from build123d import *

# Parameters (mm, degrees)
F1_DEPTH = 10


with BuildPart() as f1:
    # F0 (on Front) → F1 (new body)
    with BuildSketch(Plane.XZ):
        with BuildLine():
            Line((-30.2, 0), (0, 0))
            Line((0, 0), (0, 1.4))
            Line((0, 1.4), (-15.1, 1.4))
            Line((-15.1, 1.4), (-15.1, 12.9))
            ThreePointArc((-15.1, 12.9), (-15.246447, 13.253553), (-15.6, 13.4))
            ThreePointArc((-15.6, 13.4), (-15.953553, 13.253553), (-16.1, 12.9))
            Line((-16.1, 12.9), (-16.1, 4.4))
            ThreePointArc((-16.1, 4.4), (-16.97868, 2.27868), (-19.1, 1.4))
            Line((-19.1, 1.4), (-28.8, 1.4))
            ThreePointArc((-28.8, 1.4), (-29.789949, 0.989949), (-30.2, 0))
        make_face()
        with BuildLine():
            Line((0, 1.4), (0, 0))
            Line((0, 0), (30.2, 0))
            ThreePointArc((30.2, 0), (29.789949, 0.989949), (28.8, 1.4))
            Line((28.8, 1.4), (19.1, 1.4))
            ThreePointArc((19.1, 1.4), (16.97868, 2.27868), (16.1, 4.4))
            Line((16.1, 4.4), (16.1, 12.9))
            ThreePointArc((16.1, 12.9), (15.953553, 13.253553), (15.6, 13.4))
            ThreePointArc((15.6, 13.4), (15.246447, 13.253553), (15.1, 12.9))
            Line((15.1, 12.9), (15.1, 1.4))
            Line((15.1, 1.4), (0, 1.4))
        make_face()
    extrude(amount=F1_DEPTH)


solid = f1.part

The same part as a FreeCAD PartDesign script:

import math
import FreeCAD as App
import Part
import Sketcher
from FreeCAD import Vector

doc = App.newDocument("Part")
params = doc.addObject("Spreadsheet::Sheet", "Params")
for row, (alias, value) in enumerate([
    ("sketch1_radius", "3.000001 mm"),
    ("sketch1_radius2", "1.400002 mm"),
    ("sketch1_radius3", "0.500001 mm"),
    ("sketch1_width", "60.4 mm"),
    ("sketch1_width2", "9.7 mm"),
    ("pad1_length", "10 mm"),
], start=1):
    params.set(f"A{row}", alias)
    params.set(f"B{row}", "=" + value)
    params.setAlias(f"B{row}", alias)

body = doc.addObject("PartDesign::Body", "Body")

sketch1 = doc.addObject("Sketcher::SketchObject", "Sketch")
body.addObject(sketch1)
sketch1.AttachmentSupport = (doc.XZ_Plane, [""])
sketch1.MapMode = "FlatFace"
sketch1.addGeometry(Part.LineSegment(Vector(-30.2, 0, 0), Vector(30.2, 0, 0)), False)
sketch1.addGeometry(Part.ArcOfCircle(Part.Circle(Vector(28.799998, -0.000002, 0), Vector(0, 0, 1), 1.400002), math.radians(0.000069), math.radians(89.999931)), False)
sketch1.addGeometry(Part.LineSegment(Vector(28.8, 1.4, 0), Vector(19.1, 1.4, 0)), False)
sketch1.addGeometry(Part.ArcOfCircle(Part.Circle(Vector(19.100001, 4.400001, 0), Vector(0, 0, 1), 3.000001), math.radians(-179.999978), math.radians(-90.000022)), False)
sketch1.addGeometry(Part.LineSegment(Vector(16.1, 4.4, 0), Vector(16.1, 12.9, 0)), False)
sketch1.addGeometry(Part.ArcOfCircle(Part.Circle(Vector(15.599999, 12.899999, 0), Vector(0, 0, 1), 0.500001), math.radians(0.000153), math.radians(89.999847)), False)
sketch1.addGeometry(Part.ArcOfCircle(Part.Circle(Vector(15.600001, 12.899999, 0), Vector(0, 0, 1), 0.500001), math.radians(90.000153), math.radians(179.999847)), False)
sketch1.addGeometry(Part.LineSegment(Vector(15.1, 12.9, 0), Vector(15.1, 1.4, 0)), False)
sketch1.addGeometry(Part.LineSegment(Vector(15.1, 1.4, 0), Vector(-15.1, 1.4, 0)), False)
sketch1.addGeometry(Part.LineSegment(Vector(-15.1, 1.4, 0), Vector(-15.1, 12.9, 0)), False)
sketch1.addGeometry(Part.ArcOfCircle(Part.Circle(Vector(-15.600001, 12.899999, 0), Vector(0, 0, 1), 0.500001), math.radians(0.000153), math.radians(89.999847)), False)
sketch1.addGeometry(Part.ArcOfCircle(Part.Circle(Vector(-15.599999, 12.899999, 0), Vector(0, 0, 1), 0.500001), math.radians(90.000153), math.radians(179.999847)), False)
sketch1.addGeometry(Part.LineSegment(Vector(-16.1, 12.9, 0), Vector(-16.1, 4.4, 0)), False)
sketch1.addGeometry(Part.ArcOfCircle(Part.Circle(Vector(-19.100001, 4.400001, 0), Vector(0, 0, 1), 3.000001), math.radians(-89.999978), math.radians(-0.000022)), False)
sketch1.addGeometry(Part.LineSegment(Vector(-19.1, 1.4, 0), Vector(-28.8, 1.4, 0)), False)
sketch1.addGeometry(Part.ArcOfCircle(Part.Circle(Vector(-28.799998, -0.000002, 0), Vector(0, 0, 1), 1.400002), math.radians(90.000069), math.radians(179.999931)), False)
sketch1.addConstraint(Sketcher.Constraint("Coincident", 0, 2, 1, 1))
sketch1.addConstraint(Sketcher.Constraint("Tangent", 1, 2, 2, 1))
sketch1.addConstraint(Sketcher.Constraint("Tangent", 2, 2, 3, 2))
sketch1.addConstraint(Sketcher.Constraint("Tangent", 3, 1, 4, 1))
sketch1.addConstraint(Sketcher.Constraint("Coincident", 4, 2, 5, 1))
sketch1.addConstraint(Sketcher.Constraint("Coincident", 5, 2, 6, 1))
sketch1.addConstraint(Sketcher.Constraint("Coincident", 6, 2, 7, 1))
sketch1.addConstraint(Sketcher.Constraint("Coincident", 7, 2, 8, 1))
sketch1.addConstraint(Sketcher.Constraint("Coincident", 8, 2, 9, 1))
sketch1.addConstraint(Sketcher.Constraint("Coincident", 9, 2, 10, 1))
sketch1.addConstraint(Sketcher.Constraint("Coincident", 10, 2, 11, 1))
sketch1.addConstraint(Sketcher.Constraint("Coincident", 11, 2, 12, 1))
sketch1.addConstraint(Sketcher.Constraint("Tangent", 12, 2, 13, 2))
sketch1.addConstraint(Sketcher.Constraint("Tangent", 13, 1, 14, 1))
sketch1.addConstraint(Sketcher.Constraint("Tangent", 14, 2, 15, 1))
sketch1.addConstraint(Sketcher.Constraint("Coincident", 15, 2, 0, 1))
sketch1.addConstraint(Sketcher.Constraint("Horizontal", 0))
sketch1.addConstraint(Sketcher.Constraint("Horizontal", 2))
sketch1.addConstraint(Sketcher.Constraint("Vertical", 4))
sketch1.addConstraint(Sketcher.Constraint("Vertical", 7))
sketch1.addConstraint(Sketcher.Constraint("Horizontal", 8))
sketch1.addConstraint(Sketcher.Constraint("Vertical", 9))
sketch1.addConstraint(Sketcher.Constraint("Vertical", 12))
sketch1.addConstraint(Sketcher.Constraint("Horizontal", 14))
sketch1.addConstraint(Sketcher.Constraint("Coincident", 6, 3, 5, 3))
sketch1.addConstraint(Sketcher.Constraint("Coincident", 11, 3, 10, 3))
sketch1.addConstraint(Sketcher.Constraint("Equal", 6, 10))
sketch1.addConstraint(Sketcher.Constraint("Equal", 3, 13))
sketch1.addConstraint(Sketcher.Constraint("Equal", 1, 15))
sketch1.addConstraint(Sketcher.Constraint("Symmetric", 1, 3, 15, 3, -1, 1))
sketch1.addConstraint(Sketcher.Constraint("Symmetric", 5, 3, 10, 3, -2))
sketch1.addConstraint(Sketcher.Constraint("PointOnObject", 1, 3, -1))
sketch1.addConstraint(Sketcher.Constraint("PointOnObject", 0, 2, -1))
sketch1.addConstraint(Sketcher.Constraint("Horizontal", 11, 3, 4, 2))
sketch1.addConstraint(Sketcher.Constraint("Horizontal", 4, 2, 6, 2))
sketch1.addConstraint(Sketcher.Constraint("Horizontal", 2, 2, 7, 2))
sketch1.addConstraint(Sketcher.Constraint("Horizontal", 6, 2, 9, 2))
sketch1.addConstraint(Sketcher.Constraint("Horizontal", 9, 2, 11, 2))
sketch1.addConstraint(Sketcher.Constraint("Vertical", 6, 3, 5, 2))
sketch1.addConstraint(Sketcher.Constraint("Vertical", 11, 3, 10, 2))
sketch1.addConstraint(Sketcher.Constraint("Radius", 3, 3.000001))
sketch1.addConstraint(Sketcher.Constraint("Radius", 1, 1.400002))
sketch1.addConstraint(Sketcher.Constraint("Radius", 5, 0.500001))
sketch1.addConstraint(Sketcher.Constraint("DistanceX", 0, 1, 0, 2, 60.4))
sketch1.addConstraint(Sketcher.Constraint("DistanceX", 2, 2, 2, 1, 9.7))
sketch1.addConstraint(Sketcher.Constraint("DistanceY", 4, 1, 4, 2, 8.5))
sketch1.setExpression("Constraints[40]", "Params.sketch1_radius")
sketch1.setExpression("Constraints[41]", "Params.sketch1_radius2")
sketch1.setExpression("Constraints[42]", "Params.sketch1_radius3")
sketch1.setExpression("Constraints[43]", "Params.sketch1_width")
sketch1.setExpression("Constraints[44]", "Params.sketch1_width2")
pad1 = doc.addObject("PartDesign::Pad", "Pad")
body.addObject(pad1)
pad1.Profile = sketch1
pad1.setExpression("Length", "Params.pad1_length")

doc.recompute()
